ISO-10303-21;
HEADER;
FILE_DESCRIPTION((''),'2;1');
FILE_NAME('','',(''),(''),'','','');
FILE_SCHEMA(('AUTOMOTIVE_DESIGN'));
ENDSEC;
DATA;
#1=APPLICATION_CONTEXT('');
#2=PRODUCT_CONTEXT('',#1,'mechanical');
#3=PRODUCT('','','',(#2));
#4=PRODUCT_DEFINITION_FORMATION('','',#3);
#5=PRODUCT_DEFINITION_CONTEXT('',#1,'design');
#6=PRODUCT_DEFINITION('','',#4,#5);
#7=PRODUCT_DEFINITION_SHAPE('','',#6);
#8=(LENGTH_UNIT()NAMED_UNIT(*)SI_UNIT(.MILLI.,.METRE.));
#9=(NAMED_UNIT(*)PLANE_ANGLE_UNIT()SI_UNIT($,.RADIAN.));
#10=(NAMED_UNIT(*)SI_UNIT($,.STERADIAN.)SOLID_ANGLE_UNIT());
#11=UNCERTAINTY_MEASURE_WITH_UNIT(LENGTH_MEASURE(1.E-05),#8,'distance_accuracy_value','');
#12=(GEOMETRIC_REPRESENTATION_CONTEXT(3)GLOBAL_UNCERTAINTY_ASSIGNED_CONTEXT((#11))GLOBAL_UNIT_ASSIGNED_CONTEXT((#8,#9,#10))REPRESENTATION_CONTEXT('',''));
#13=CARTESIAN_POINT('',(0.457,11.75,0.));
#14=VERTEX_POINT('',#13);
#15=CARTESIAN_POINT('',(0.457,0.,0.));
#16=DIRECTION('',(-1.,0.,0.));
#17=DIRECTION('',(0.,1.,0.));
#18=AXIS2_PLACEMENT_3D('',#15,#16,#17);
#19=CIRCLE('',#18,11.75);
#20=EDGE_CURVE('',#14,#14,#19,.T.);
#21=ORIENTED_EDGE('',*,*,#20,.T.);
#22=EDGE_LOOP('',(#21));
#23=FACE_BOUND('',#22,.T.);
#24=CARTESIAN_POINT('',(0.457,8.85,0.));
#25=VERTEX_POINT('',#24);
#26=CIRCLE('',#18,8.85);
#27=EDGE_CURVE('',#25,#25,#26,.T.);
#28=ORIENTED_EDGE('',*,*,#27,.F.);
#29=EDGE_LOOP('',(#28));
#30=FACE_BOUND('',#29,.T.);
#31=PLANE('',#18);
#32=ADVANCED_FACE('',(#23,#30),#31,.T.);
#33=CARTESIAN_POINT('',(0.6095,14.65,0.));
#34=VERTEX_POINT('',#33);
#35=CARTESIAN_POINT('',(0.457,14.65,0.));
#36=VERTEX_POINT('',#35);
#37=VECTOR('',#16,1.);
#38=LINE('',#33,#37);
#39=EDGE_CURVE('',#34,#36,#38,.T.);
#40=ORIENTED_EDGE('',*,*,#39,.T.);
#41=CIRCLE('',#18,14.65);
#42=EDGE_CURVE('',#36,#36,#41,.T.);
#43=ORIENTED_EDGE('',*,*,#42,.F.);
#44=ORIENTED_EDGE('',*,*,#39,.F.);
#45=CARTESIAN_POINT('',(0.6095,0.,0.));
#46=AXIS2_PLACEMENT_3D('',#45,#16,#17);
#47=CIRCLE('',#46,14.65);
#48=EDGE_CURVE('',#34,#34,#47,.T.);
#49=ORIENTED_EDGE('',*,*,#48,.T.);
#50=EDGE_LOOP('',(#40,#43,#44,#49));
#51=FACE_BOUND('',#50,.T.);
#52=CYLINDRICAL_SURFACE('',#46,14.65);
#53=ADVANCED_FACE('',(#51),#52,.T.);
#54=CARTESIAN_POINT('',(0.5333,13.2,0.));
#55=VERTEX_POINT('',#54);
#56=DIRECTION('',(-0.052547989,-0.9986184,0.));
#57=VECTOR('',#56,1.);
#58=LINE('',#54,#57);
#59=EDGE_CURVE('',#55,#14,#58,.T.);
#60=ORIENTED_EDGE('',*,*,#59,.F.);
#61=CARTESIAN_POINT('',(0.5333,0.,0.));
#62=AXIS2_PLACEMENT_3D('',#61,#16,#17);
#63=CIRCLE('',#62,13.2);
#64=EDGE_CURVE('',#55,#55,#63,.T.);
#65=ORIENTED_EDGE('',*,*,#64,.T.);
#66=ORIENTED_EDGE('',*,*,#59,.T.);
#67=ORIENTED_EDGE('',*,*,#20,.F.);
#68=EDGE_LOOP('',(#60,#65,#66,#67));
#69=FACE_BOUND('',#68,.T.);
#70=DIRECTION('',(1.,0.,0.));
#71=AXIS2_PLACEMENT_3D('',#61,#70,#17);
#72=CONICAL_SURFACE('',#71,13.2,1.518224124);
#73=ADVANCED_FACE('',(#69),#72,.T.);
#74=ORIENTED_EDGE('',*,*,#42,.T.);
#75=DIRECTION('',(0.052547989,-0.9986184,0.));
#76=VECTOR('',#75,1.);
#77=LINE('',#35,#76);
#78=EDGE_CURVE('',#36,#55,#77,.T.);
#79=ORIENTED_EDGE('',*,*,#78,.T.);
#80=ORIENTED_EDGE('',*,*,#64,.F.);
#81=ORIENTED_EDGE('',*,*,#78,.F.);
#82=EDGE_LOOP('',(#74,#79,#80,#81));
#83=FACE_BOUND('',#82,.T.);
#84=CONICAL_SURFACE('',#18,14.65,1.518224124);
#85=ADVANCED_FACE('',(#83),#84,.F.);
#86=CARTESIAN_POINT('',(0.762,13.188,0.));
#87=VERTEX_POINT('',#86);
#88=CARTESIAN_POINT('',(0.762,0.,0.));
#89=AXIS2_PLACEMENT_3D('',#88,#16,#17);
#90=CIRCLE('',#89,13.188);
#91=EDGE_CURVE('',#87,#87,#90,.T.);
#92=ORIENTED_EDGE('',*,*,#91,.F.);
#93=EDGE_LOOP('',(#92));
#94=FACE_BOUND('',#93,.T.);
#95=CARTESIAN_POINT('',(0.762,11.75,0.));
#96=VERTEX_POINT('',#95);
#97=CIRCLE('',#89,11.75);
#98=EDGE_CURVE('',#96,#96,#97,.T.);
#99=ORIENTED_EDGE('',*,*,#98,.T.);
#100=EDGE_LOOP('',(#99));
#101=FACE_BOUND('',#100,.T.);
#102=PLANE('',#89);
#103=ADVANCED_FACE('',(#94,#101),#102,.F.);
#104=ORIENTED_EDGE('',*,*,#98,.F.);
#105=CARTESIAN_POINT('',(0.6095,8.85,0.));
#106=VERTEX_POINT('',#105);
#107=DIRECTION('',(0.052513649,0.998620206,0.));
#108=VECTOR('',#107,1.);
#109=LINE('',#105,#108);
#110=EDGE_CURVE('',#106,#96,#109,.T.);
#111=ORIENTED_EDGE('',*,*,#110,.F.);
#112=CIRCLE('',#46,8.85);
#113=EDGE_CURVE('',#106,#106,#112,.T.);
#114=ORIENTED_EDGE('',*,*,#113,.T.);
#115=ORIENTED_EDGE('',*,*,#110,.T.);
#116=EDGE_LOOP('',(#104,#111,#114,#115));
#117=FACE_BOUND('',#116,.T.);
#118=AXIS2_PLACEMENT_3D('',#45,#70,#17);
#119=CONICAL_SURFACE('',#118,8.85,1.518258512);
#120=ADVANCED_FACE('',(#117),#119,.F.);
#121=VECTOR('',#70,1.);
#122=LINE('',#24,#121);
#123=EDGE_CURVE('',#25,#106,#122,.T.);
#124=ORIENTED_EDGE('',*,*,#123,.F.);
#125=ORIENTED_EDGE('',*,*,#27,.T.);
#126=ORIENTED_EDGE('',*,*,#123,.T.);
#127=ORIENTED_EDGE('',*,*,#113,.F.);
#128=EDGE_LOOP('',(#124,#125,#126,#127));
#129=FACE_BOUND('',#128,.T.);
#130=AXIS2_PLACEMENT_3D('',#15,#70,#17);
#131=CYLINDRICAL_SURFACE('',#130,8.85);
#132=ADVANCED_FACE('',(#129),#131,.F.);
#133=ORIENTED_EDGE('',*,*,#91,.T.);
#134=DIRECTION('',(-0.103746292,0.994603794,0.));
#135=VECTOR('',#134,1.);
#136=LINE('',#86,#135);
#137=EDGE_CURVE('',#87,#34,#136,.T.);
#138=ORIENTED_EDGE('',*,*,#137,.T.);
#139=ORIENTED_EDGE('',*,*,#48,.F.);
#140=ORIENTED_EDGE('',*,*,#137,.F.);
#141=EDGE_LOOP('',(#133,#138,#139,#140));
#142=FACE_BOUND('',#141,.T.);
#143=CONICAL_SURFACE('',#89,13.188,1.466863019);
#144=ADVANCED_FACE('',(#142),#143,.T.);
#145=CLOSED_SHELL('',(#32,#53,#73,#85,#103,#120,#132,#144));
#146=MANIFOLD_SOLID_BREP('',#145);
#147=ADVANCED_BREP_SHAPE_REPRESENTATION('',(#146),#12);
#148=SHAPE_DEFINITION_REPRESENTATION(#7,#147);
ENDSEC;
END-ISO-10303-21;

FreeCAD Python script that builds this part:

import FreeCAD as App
import Part
import Sketcher

V = App.Vector
Q = App.Units.Quantity

doc = App.newDocument("Part")
params = doc.addObject("Spreadsheet::Sheet", "Params")
for row, (alias, value) in enumerate([
    ("sketch1_height", "2.9 mm"),
    ("sketch1_length", "1.47 mm"),
    ("revolution_angle", "360 deg"),
], start=1):
    params.set(f"A{row}", alias)
    params.set(f"B{row}", "=" + value)
    params.setAlias(f"B{row}", alias)

body = doc.addObject("PartDesign::Body", "Body")

# Sketch on XY plane
sketch1 = doc.addObject("Sketcher::SketchObject", "Sketch")
body.addObject(sketch1)
sketch1.AttachmentSupport = (doc.XY_Plane, [""])
sketch1.MapMode = "FlatFace"
sketch1.addGeometry([
    Part.LineSegment(V(0.46, 11.75, 0), V(0.46, 8.85, 0)),  # 0
    Part.LineSegment(V(0.46, 8.85, 0), V(0.61, 8.85, 0)),  # 1
    Part.LineSegment(V(0.61, 8.85, 0), V(0.76, 11.75, 0)),  # 2
    Part.LineSegment(V(0.76, 11.75, 0), V(0.76, 13.19, 0)),  # 3
    Part.LineSegment(V(0.76, 13.19, 0), V(0.61, 14.65, 0)),  # 4
    Part.LineSegment(V(0.61, 14.65, 0), V(0.46, 14.65, 0)),  # 5
    Part.LineSegment(V(0.46, 14.65, 0), V(0.53, 13.2, 0)),  # 6
    Part.LineSegment(V(0.53, 13.2, 0), V(0.46, 11.75, 0)),  # 7
], False)
sketch1.addConstraint([
    Sketcher.Constraint("Coincident", 0, 2, 1, 1),
    Sketcher.Constraint("Coincident", 1, 2, 2, 1),
    Sketcher.Constraint("Coincident", 2, 2, 3, 1),
    Sketcher.Constraint("Coincident", 3, 2, 4, 1),
    Sketcher.Constraint("Coincident", 4, 2, 5, 1),
    Sketcher.Constraint("Coincident", 5, 2, 6, 1),
    Sketcher.Constraint("Coincident", 6, 2, 7, 1),
    Sketcher.Constraint("Coincident", 7, 2, 0, 1),
    Sketcher.Constraint("Vertical", 0),
    Sketcher.Constraint("Horizontal", 1),
    Sketcher.Constraint("Vertical", 3),
    Sketcher.Constraint("Horizontal", 5),
    Sketcher.Constraint("Parallel", 2, 7),
    Sketcher.Constraint("Horizontal", 2, 2, 7, 2),
    Sketcher.Constraint("Vertical", 1, 2, 4, 2),
    Sketcher.Constraint("Vertical", 0, 2, 5, 2),
    Sketcher.Constraint("Equal", 6, 7),
    Sketcher.Constraint("DistanceY", 0, 2, 0, 1, Q("2.9 mm")),
    Sketcher.Constraint("DistanceY", -1, 1, 6, 2, Q("13.2 mm")),
    Sketcher.Constraint("Angle", 2, Q("86.9898 deg")),
    Sketcher.Constraint("DistanceY", 2, 2, 4, 2, Q("2.9 mm")),
    Sketcher.Constraint("Distance", 4, Q("1.47 mm")),
    Sketcher.Constraint("DistanceX", 1, 1, 1, 2, Q("0.1525 mm")),
    Sketcher.Constraint("DistanceX", -1, 1, 0, 2, Q("0.457 mm")),
])
sketch1.setExpression("Constraints[17]", "Params.sketch1_height")
sketch1.setExpression("Constraints[21]", "Params.sketch1_length")
revolution = doc.addObject("PartDesign::Revolution", "Revolution")
body.addObject(revolution)
revolution.Profile = sketch1
revolution.ReferenceAxis = (sketch1, ["H_Axis"])
revolution.setExpression("Angle", "Params.revolution_angle")

doc.recompute()
